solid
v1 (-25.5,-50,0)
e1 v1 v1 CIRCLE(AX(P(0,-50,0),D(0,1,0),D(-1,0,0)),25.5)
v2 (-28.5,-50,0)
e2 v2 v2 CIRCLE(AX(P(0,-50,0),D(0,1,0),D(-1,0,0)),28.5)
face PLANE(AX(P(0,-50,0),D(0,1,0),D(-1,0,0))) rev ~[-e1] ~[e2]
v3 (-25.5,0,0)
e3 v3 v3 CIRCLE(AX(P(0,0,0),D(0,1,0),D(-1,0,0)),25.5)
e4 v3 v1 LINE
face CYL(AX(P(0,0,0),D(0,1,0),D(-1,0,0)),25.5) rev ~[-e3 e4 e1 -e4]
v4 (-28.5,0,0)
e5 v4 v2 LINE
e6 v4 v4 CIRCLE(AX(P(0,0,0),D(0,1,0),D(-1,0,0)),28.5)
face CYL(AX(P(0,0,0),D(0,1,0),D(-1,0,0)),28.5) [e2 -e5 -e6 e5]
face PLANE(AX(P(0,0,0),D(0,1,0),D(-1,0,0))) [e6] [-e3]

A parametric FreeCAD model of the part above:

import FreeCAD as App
import Part
import Sketcher
from FreeCAD import Vector

doc = App.newDocument("Part")
body = doc.addObject("PartDesign::Body", "Body")

# Sketch on XZ plane
sketch1 = body.newObject("Sketcher::SketchObject", "Sketch")
sketch1.AttachmentSupport = (doc.getObject("XZ_Plane"), [""])
sketch1.MapMode = "FlatFace"
sketch1.addGeometry([
    Part.Circle(Vector(0, 0, 0), Vector(0, 0, 1), 28),
    Part.Circle(Vector(0, 0, 0), Vector(0, 0, 1), 26),
], False)
sketch1.addConstraint([
    Sketcher.Constraint("Coincident", 0, 3, -1, 1),
    Sketcher.Constraint("Coincident", 1, 3, -1, 1),
    Sketcher.Constraint("Diameter", 0, 57.0),
    Sketcher.Constraint("Diameter", 1, 51.0),
])
pad1 = body.newObject("PartDesign::Pad", "Pad")
pad1.Profile = sketch1
pad1.Length = 50

doc.recompute()
